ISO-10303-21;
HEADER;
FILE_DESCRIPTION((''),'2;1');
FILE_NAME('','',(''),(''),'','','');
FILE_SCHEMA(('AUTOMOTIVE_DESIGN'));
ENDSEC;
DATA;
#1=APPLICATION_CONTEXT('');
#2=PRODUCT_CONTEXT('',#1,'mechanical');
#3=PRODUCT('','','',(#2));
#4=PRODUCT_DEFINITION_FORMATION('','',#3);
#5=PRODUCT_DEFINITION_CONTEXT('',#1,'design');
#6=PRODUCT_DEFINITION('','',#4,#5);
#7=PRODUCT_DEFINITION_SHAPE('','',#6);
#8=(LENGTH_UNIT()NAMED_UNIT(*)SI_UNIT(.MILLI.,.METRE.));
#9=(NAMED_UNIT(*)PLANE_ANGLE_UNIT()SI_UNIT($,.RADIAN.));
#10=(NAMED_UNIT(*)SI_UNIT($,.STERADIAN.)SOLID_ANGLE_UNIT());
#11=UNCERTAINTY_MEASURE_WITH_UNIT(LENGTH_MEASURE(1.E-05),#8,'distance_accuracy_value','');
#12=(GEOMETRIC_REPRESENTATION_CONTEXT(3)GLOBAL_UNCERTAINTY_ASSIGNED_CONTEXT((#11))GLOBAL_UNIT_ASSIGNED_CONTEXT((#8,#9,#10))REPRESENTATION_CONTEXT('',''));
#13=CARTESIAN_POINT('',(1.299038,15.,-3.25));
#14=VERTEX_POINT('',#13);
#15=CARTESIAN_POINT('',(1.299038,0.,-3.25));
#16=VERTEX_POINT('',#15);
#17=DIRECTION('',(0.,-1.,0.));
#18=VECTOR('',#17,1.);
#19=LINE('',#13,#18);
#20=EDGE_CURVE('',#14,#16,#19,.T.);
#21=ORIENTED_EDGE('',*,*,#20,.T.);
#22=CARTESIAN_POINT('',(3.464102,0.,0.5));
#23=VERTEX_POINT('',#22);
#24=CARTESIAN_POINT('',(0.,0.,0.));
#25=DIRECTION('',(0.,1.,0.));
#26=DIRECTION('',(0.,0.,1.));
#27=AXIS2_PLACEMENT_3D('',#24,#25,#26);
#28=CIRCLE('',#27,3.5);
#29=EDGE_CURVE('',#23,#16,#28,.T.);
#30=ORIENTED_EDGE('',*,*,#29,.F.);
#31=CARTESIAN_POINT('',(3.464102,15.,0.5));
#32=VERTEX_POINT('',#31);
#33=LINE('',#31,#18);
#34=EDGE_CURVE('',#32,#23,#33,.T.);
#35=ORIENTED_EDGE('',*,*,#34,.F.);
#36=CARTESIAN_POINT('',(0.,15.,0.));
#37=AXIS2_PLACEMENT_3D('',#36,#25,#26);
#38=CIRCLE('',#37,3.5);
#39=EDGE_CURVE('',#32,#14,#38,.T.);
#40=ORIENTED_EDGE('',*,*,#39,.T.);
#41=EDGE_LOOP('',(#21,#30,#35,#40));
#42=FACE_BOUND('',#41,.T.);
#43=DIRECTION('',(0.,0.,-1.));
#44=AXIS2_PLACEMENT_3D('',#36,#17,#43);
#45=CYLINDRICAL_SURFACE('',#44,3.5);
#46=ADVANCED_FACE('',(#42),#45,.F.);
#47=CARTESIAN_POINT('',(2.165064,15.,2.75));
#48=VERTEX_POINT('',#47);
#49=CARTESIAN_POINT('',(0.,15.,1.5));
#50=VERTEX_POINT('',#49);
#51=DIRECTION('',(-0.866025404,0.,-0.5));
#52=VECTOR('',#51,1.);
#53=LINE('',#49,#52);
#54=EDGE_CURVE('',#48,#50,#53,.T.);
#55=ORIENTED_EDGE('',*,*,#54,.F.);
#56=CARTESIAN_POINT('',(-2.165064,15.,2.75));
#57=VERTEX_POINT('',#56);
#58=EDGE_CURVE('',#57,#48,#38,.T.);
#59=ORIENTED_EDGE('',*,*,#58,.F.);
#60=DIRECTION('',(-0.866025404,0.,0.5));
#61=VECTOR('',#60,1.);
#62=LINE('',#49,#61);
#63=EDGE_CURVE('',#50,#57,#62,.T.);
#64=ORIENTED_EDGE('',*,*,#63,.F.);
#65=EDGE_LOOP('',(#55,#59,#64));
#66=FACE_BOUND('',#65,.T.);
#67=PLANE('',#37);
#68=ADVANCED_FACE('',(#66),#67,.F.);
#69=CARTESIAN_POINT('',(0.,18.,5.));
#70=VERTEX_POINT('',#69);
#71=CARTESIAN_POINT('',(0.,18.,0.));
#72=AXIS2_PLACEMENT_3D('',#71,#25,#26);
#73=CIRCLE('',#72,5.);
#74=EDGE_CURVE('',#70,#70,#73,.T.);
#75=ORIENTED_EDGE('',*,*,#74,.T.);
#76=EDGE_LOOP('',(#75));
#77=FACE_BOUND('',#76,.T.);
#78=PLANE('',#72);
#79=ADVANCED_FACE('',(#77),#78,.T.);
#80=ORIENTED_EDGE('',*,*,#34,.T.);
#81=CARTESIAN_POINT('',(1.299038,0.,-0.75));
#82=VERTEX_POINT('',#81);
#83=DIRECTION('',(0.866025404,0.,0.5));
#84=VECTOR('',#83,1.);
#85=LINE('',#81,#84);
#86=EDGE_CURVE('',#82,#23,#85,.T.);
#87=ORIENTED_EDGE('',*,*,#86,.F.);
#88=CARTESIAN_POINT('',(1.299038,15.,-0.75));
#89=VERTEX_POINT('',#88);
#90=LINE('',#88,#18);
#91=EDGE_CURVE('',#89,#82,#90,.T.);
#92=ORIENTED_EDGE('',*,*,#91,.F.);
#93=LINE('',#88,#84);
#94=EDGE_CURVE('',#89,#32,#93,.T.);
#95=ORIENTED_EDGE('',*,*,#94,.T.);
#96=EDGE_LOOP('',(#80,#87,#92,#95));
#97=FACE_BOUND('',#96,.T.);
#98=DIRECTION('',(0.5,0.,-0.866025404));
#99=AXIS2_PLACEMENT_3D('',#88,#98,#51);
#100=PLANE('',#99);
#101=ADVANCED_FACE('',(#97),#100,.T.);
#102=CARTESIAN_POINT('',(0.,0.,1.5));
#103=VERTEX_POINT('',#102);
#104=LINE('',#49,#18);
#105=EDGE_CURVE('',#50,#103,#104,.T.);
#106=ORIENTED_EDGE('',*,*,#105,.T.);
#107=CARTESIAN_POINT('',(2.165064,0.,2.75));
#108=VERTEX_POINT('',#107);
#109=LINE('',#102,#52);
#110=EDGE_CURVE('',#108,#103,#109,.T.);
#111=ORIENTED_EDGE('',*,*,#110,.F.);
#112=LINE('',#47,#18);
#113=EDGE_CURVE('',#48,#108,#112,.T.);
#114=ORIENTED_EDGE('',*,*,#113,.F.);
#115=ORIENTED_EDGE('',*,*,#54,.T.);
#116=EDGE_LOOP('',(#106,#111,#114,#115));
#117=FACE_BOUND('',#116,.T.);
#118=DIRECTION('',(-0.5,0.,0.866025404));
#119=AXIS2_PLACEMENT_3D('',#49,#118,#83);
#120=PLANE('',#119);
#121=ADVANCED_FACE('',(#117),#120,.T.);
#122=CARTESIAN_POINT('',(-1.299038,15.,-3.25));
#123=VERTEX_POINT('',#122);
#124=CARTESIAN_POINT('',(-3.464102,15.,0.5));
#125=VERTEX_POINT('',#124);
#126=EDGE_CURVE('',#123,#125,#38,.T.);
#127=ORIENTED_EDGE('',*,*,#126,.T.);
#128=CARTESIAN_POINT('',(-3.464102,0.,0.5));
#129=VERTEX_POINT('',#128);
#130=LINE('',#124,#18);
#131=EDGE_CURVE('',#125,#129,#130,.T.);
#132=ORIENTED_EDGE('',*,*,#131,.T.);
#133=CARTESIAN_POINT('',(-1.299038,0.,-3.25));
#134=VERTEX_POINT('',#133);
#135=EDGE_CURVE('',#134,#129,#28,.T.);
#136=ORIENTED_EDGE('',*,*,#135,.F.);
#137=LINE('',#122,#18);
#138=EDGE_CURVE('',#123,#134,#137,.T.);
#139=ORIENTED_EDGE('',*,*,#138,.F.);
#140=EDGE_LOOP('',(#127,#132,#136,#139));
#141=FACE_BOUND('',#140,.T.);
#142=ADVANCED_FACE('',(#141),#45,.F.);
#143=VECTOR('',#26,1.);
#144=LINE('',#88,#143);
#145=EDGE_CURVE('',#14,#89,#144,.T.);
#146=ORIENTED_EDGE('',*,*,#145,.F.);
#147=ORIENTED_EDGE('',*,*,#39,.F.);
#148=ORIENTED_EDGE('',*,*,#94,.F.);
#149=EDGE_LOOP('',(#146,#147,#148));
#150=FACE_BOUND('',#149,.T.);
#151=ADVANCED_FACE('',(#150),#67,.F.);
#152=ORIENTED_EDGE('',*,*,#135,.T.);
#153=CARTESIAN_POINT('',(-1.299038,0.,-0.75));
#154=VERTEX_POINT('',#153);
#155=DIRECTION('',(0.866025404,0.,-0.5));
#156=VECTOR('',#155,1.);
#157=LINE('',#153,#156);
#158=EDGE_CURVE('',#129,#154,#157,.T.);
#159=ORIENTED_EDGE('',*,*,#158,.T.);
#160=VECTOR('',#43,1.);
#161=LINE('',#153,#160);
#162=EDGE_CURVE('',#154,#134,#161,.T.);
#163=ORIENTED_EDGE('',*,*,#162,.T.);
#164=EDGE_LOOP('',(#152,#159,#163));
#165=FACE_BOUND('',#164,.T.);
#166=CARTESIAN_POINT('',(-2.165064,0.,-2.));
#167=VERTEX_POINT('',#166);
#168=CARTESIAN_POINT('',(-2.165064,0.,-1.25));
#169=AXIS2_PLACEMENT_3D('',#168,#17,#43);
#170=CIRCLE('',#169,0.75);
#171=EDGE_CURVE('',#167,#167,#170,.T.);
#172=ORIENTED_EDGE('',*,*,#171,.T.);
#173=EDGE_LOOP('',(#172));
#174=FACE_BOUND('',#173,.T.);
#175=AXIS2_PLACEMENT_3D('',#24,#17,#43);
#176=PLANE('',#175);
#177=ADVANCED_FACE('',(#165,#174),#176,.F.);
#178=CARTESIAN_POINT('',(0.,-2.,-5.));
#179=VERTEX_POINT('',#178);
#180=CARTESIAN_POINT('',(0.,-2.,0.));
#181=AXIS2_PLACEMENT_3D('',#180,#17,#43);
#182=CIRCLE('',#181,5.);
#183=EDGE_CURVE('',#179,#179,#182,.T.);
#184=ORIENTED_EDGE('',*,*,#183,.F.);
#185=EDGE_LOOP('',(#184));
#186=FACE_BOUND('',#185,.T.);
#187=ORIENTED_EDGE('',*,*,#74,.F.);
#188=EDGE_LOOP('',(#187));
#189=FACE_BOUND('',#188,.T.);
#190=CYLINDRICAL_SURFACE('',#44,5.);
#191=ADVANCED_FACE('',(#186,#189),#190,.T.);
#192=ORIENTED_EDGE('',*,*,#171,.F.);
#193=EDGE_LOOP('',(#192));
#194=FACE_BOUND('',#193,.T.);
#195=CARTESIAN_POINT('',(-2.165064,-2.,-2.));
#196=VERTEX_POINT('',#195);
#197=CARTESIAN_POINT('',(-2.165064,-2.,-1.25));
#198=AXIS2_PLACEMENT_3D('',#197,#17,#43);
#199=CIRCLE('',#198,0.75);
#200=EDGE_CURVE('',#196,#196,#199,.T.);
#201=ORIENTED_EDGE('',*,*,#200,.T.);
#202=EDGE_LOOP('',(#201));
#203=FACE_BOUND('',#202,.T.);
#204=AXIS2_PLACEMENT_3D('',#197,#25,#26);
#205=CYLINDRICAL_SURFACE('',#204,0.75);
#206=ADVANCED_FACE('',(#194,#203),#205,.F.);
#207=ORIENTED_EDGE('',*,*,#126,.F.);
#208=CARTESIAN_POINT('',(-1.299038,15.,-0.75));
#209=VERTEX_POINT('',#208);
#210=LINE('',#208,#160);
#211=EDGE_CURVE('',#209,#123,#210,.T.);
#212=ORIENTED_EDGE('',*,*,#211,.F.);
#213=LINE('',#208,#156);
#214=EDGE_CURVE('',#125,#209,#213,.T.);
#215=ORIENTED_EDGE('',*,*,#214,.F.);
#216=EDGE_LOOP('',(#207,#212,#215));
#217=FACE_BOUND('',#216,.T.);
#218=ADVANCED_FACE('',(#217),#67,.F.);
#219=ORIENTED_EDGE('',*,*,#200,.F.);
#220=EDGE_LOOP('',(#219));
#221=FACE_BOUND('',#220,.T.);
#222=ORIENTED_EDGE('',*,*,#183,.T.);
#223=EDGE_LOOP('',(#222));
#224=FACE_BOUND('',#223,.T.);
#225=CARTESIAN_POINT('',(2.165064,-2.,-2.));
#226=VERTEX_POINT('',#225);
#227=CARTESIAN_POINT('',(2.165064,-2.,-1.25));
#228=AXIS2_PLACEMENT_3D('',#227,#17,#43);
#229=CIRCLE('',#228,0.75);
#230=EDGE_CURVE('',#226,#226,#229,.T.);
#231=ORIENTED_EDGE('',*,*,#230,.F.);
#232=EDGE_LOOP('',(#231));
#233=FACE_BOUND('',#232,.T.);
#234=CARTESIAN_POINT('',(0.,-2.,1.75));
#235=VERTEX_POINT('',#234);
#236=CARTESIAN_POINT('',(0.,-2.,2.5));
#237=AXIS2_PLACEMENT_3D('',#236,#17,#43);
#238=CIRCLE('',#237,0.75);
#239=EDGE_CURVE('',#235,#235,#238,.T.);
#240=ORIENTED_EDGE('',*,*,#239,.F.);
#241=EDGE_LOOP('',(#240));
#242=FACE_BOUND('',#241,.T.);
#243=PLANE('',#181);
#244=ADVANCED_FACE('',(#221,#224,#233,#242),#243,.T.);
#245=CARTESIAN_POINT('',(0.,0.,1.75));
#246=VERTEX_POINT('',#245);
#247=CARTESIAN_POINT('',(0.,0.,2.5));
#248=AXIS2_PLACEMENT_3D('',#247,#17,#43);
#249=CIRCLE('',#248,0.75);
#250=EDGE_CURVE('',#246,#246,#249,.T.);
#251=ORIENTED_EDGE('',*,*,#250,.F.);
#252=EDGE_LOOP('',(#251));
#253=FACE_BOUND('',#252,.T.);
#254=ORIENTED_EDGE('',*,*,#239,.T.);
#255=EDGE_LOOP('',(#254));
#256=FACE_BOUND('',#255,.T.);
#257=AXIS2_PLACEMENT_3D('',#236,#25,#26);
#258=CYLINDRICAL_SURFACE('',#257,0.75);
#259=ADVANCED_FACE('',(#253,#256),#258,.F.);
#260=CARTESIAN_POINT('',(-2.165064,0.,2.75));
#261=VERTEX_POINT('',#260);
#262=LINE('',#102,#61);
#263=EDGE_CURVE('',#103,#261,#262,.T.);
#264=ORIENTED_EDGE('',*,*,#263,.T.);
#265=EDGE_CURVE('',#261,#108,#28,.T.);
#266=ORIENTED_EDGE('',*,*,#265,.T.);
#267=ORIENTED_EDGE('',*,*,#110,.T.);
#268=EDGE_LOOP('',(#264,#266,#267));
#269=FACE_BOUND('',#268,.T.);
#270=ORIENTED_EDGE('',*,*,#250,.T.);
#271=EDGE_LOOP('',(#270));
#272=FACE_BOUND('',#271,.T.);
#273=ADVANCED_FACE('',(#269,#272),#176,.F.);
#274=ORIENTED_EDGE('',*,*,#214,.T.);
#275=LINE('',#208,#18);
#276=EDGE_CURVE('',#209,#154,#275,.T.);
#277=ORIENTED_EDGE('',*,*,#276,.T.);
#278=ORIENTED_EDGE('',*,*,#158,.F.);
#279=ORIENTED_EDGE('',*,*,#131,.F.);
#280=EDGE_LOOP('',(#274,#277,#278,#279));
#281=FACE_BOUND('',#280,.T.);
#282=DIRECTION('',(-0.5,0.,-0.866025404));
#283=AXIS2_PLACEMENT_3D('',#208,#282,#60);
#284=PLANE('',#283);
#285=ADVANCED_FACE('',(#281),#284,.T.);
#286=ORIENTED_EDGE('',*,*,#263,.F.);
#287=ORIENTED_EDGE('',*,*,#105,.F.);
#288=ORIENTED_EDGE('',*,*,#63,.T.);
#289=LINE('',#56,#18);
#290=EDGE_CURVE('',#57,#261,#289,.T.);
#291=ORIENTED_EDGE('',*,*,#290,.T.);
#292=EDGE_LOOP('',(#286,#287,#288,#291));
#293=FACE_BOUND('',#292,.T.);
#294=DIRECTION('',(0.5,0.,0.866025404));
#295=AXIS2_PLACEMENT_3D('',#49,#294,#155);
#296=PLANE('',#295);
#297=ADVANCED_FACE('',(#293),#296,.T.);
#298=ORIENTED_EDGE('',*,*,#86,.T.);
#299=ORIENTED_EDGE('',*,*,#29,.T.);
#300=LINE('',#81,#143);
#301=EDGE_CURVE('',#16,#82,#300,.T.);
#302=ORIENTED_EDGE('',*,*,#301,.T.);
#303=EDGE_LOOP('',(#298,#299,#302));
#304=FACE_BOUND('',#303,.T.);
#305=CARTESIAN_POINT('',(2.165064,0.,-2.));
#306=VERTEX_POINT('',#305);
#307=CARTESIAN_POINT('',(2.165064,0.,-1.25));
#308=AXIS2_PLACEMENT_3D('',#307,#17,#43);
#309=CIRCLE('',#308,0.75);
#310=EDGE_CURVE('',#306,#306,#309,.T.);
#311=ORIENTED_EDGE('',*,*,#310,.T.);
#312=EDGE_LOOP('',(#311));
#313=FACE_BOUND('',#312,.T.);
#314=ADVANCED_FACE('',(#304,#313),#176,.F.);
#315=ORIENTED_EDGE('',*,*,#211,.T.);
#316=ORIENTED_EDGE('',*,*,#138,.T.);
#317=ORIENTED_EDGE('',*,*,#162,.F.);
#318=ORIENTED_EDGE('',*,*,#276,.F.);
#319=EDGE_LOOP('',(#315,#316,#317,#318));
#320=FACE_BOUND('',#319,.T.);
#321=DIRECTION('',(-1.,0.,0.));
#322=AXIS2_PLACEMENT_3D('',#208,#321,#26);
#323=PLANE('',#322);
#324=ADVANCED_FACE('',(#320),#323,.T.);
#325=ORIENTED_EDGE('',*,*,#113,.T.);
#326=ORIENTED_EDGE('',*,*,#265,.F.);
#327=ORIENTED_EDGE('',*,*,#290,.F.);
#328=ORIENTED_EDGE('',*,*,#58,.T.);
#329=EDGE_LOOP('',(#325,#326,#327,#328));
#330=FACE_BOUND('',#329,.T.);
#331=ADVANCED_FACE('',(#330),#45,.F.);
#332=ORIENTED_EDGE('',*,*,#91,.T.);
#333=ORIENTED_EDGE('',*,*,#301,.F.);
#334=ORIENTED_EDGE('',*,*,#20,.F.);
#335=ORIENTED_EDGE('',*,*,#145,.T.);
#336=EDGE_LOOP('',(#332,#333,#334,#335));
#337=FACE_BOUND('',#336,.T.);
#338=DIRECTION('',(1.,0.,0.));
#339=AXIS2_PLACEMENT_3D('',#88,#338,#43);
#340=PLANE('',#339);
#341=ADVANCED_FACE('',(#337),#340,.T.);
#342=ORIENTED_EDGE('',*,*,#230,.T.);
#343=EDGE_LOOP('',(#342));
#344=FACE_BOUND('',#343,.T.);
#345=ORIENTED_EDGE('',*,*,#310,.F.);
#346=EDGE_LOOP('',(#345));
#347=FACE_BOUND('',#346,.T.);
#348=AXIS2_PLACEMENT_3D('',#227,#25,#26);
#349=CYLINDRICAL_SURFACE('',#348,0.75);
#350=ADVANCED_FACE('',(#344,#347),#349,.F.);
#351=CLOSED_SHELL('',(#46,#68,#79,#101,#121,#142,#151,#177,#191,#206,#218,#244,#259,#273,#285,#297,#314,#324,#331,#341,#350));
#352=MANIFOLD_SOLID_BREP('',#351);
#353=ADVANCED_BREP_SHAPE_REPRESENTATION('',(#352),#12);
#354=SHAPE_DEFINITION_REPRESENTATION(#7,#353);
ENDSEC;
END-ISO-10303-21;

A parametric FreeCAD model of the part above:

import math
import FreeCAD as App
import Part
import Sketcher
from FreeCAD import Vector
Q = App.Units.Quantity

doc = App.newDocument("Part")
body = doc.addObject("PartDesign::Body", "Body")

# Sketch on XZ plane
sketch1 = body.newObject("Sketcher::SketchObject", "Sketch")
sketch1.AttachmentSupport = (doc.getObject("XZ_Plane"), [""])
sketch1.MapMode = "FlatFace"
sketch1.addGeometry([
    Part.Circle(Vector(0, 0, 0), Vector(0, 0, 1), 5),  # 0
    Part.LineSegment(Vector(-1.299038, -3.25, 0), Vector(-1.299038, -0.75, 0)),  # 1
    Part.LineSegment(Vector(-1.299038, -0.75, 0), Vector(-3.464102, 0.5, 0)),  # 2
    Part.ArcOfCircle(Part.Circle(Vector(0, 0, 0), Vector(0, 0, 1), 3.5), math.radians(171.786789), math.radians(248.213211)),  # 3
    Part.LineSegment(Vector(3.464102, 0.5, 0), Vector(1.299038, -0.75, 0)),  # 4
    Part.LineSegment(Vector(1.299038, -0.75, 0), Vector(1.299038, -3.25, 0)),  # 5
    Part.ArcOfCircle(Part.Circle(Vector(0, 0, 0), Vector(0, 0, 1), 3.5), math.radians(-68.213211), math.radians(8.213211)),  # 6
    Part.LineSegment(Vector(-2.165064, 2.75, 0), Vector(0, 1.5, 0)),  # 7
    Part.LineSegment(Vector(0, 1.5, 0), Vector(2.165064, 2.75, 0)),  # 8
    Part.ArcOfCircle(Part.Circle(Vector(0, 0, 0), Vector(0, 0, 1), 3.5), math.radians(51.786789), math.radians(128.213211)),  # 9
], False)
sketch1.addConstraint([
    Sketcher.Constraint("Coincident", 1, 2, 2, 1),
    Sketcher.Constraint("Coincident", 2, 2, 3, 1),
    Sketcher.Constraint("Coincident", 3, 2, 1, 1),
    Sketcher.Constraint("Coincident", 4, 2, 5, 1),
    Sketcher.Constraint("Coincident", 5, 2, 6, 1),
    Sketcher.Constraint("Coincident", 6, 2, 4, 1),
    Sketcher.Constraint("Coincident", 7, 2, 8, 1),
    Sketcher.Constraint("Coincident", 8, 2, 9, 1),
    Sketcher.Constraint("Coincident", 9, 2, 7, 1),
    Sketcher.Constraint("Vertical", 1),
    Sketcher.Constraint("Vertical", 5),
    Sketcher.Constraint("Coincident", 0, 3, -1, 1),
    Sketcher.Constraint("Coincident", 3, 3, -1, 1),
    Sketcher.Constraint("Coincident", 6, 3, -1, 1),
    Sketcher.Constraint("Coincident", 9, 3, -1, 1),
    Sketcher.Constraint("Equal", 3, 6),
    Sketcher.Constraint("Equal", 6, 9),
    Sketcher.Constraint("Symmetric", 1, 2, 4, 2, -2),
    Sketcher.Constraint("PointOnObject", 7, 2, -2),
    Sketcher.Constraint("Parallel", 2, 7),
    Sketcher.Constraint("Parallel", 4, 8),
    Sketcher.Constraint("Horizontal", 2, 2, 6, 2),
    Sketcher.Constraint("Equal", 4, 7),
    Sketcher.Constraint("Diameter", 0, Q("10 mm")),
    Sketcher.Constraint("Radius", 3, Q("3.5 mm")),
    Sketcher.Constraint("Angle", 2, Q("150 deg")),
    Sketcher.Constraint("DistanceY", 1, 1, 1, 2, Q("2.5 mm")),
    Sketcher.Constraint("Distance", 2, Q("2.5 mm")),
])
pad1 = body.newObject("PartDesign::Pad", "Pad")
pad1.Profile = sketch1
pad1.Length = 15
pad1.Reversed = True

# Sketch on XZ plane
sketch2 = body.newObject("Sketcher::SketchObject", "Sketch001")
sketch2.AttachmentSupport = (doc.getObject("XZ_Plane"), [""])
sketch2.MapMode = "FlatFace"
sketch2.AttachmentOffset = App.Placement(Vector(0, 0, 2), App.Rotation())
sketch2.addGeometry([
    Part.Circle(Vector(0, 0, 0), Vector(0, 0, 1), 5),
    Part.Circle(Vector(0, 2.5, 0), Vector(0, 0, 1), 0.75),
    Part.Circle(Vector(-2.165064, -1.25, 0), Vector(0, 0, 1), 0.75),
    Part.Circle(Vector(2.165064, -1.25, 0), Vector(0, 0, 1), 0.75),
], False)
sketch2.addConstraint([
    Sketcher.Constraint("Coincident", 0, 3, -1, 1),
    Sketcher.Constraint("Equal", 1, 2),
    Sketcher.Constraint("Equal", 2, 3),
    Sketcher.Constraint("Symmetric", 2, 3, 3, 3, -2),
    Sketcher.Constraint("PointOnObject", 1, 3, -2),
    Sketcher.Constraint("Diameter", 0, Q("10 mm")),
    Sketcher.Constraint("Diameter", 1, Q("1.5 mm")),
    Sketcher.Constraint("DistanceY", -1, 1, 1, 3, Q("2.5 mm")),
    Sketcher.Constraint("DistanceY", 2, 3, -1, 1, Q("1.25 mm")),
    Sketcher.Constraint("DistanceX", 2, 3, -1, 1, Q("2.165064 mm")),
])
pad2 = body.newObject("PartDesign::Pad", "Pad001")
pad2.Profile = sketch2
pad2.Length = 2
pad2.Reversed = True

# Sketch on XZ plane
sketch3 = body.newObject("Sketcher::SketchObject", "Sketch002")
sketch3.AttachmentSupport = (doc.getObject("XZ_Plane"), [""])
sketch3.MapMode = "FlatFace"
sketch3.AttachmentOffset = App.Placement(Vector(0, 0, -15), App.Rotation())
sketch3.addGeometry(Part.Circle(Vector(0, 0, 0), Vector(0, 0, 1), 5), False)
sketch3.addConstraint([
    Sketcher.Constraint("Coincident", 0, 3, -1, 1),
    Sketcher.Constraint("Diameter", 0, Q("10 mm")),
])
pad3 = body.newObject("PartDesign::Pad", "Pad002")
pad3.Profile = sketch3
pad3.Length = 3
pad3.Reversed = True

doc.recompute()
